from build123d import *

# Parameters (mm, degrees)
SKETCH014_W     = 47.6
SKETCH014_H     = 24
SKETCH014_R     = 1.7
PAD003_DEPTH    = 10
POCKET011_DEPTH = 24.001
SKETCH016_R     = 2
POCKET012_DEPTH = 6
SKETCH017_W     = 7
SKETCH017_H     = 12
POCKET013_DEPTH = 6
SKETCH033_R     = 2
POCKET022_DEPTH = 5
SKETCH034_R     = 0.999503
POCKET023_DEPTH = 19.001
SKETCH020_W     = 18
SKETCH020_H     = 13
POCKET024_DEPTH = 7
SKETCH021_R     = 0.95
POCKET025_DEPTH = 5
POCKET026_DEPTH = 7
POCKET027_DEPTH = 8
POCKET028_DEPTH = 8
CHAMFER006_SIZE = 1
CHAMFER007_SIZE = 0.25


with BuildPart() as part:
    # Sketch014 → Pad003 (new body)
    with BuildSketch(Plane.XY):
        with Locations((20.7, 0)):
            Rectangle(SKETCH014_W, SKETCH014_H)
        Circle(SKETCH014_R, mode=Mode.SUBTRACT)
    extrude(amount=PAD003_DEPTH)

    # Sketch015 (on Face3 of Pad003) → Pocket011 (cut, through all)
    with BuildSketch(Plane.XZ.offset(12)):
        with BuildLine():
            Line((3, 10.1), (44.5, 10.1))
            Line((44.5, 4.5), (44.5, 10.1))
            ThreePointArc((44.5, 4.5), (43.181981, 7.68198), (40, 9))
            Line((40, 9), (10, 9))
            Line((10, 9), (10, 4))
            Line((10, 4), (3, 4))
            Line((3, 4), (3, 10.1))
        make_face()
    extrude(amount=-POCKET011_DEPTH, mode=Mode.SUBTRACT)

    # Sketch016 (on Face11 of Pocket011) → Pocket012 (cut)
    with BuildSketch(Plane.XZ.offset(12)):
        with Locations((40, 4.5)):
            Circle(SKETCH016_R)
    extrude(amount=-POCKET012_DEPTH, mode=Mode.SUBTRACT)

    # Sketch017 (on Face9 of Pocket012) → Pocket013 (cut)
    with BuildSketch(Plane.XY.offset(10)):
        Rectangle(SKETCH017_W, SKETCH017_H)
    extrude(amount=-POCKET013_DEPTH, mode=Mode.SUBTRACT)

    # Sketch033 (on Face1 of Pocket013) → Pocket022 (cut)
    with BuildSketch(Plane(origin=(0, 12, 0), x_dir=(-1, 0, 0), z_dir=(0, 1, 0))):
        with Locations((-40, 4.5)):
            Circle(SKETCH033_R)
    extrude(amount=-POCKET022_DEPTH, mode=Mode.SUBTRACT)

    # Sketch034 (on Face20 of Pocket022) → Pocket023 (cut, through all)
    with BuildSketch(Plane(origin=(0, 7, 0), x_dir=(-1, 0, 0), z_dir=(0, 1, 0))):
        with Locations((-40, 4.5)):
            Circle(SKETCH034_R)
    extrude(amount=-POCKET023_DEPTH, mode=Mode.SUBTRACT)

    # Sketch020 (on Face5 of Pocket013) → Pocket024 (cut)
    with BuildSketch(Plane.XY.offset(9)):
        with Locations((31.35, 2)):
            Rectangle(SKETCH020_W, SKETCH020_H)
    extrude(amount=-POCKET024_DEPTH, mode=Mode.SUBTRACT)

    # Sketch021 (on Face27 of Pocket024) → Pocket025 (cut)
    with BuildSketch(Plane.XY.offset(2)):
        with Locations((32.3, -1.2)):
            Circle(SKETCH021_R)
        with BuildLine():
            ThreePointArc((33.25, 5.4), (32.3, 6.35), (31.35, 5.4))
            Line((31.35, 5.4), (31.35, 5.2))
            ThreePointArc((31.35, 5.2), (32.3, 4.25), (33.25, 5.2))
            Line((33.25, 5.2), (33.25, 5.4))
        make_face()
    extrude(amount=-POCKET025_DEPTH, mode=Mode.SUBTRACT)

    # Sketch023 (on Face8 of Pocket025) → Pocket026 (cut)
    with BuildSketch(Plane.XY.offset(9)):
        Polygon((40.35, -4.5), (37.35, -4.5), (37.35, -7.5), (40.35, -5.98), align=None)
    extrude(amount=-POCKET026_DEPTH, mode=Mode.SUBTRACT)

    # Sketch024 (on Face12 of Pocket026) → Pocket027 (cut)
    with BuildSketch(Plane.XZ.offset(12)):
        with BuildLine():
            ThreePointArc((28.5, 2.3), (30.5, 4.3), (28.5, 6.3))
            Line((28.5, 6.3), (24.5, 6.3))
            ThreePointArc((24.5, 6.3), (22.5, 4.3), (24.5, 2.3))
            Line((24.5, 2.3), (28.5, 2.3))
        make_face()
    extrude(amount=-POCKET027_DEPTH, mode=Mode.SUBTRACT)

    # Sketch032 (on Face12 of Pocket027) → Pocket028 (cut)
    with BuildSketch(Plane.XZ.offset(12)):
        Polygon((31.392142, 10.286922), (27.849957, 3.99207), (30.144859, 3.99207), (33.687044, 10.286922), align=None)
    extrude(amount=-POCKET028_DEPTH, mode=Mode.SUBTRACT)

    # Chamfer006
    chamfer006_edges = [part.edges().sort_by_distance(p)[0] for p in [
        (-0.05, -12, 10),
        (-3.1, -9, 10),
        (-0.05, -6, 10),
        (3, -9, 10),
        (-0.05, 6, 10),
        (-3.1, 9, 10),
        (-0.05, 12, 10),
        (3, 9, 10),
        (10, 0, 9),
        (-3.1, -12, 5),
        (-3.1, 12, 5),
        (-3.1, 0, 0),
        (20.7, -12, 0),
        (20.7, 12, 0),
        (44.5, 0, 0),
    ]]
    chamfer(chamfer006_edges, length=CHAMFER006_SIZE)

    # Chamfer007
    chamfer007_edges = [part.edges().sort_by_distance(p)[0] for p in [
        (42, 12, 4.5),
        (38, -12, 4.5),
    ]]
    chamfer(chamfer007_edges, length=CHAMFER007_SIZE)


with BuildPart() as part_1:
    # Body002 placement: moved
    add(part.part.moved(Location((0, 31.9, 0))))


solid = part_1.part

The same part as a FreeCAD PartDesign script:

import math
import FreeCAD as App
import Part
import Sketcher

V = App.Vector


def edges_at(feature, points):
    """Names of the edges that pass closest to the given points."""
    edges = feature.Shape.Edges
    near = lambda p: min(range(len(edges)), key=lambda i: edges[i].distToShape(Part.Vertex(*p))[0])
    return sorted({f"Edge{near(p) + 1}" for p in points})


def add_polygon(sketch, points):
    """Adds a closed chain of lines whose ends are joined by coincident constraints."""
    first, n = sketch.GeometryCount, len(points)
    for a, b in zip(points, points[1:] + points[:1]):
        sketch.addGeometry(Part.LineSegment(App.Vector(*a, 0), App.Vector(*b, 0)), False)
    for i in range(n):
        sketch.addConstraint(Sketcher.Constraint("Coincident", first + i, 2, first + (i + 1) % n, 1))

doc = App.newDocument("Part")
body = doc.addObject("PartDesign::Body", "Body")

# Sketch on XY plane
sketch1 = body.newObject("Sketcher::SketchObject", "Sketch")
sketch1.AttachmentSupport = (doc.getObject("XY_Plane"), [""])
sketch1.MapMode = "FlatFace"
add_polygon(sketch1, [(-3.1, 12), (-3.1, -12), (44.5, -12), (44.5, 12)])  # lines 0-3
sketch1.addGeometry(Part.Circle(V(0, 0, 0), V(0, 0, 1), 1.7), False)  # 4
sketch1.addConstraint([
    Sketcher.Constraint("Vertical", 0),
    Sketcher.Constraint("Horizontal", 1),
    Sketcher.Constraint("Vertical", 2),
    Sketcher.Constraint("Horizontal", 3),
    Sketcher.Constraint("Coincident", 4, 3, -1, 1),
    Sketcher.Constraint("Diameter", 4, 3.4),
    Sketcher.Constraint("DistanceY", 0, 2, 0, 1, 24.0),
    Sketcher.Constraint("DistanceX", 1, 1, 1, 2, 47.6),
    Sketcher.Constraint("DistanceY", 0, 2, -1, 1, 12.0),
    Sketcher.Constraint("DistanceX", 0, 2, -1, 1, 3.1),
])
pad1 = body.newObject("PartDesign::Pad", "Pad")
pad1.Profile = sketch1
pad1.Length = 10

# Sketch on XZ plane
sketch2 = body.newObject("Sketcher::SketchObject", "Sketch001")
sketch2.AttachmentSupport = (doc.getObject("XZ_Plane"), [""])
sketch2.MapMode = "FlatFace"
sketch2.AttachmentOffset = App.Placement(V(0, 0, 12), App.Rotation())
sketch2.addGeometry([
    Part.LineSegment(V(44.5, 10.1, 0), V(3, 10.1, 0)),  # 0
    Part.LineSegment(V(3, 10.1, 0), V(3, 4, 0)),  # 1
    Part.LineSegment(V(3, 4, 0), V(10, 4, 0)),  # 2
    Part.LineSegment(V(10, 4, 0), V(10, 9, 0)),  # 3
    Part.LineSegment(V(10, 9, 0), V(40, 9, 0)),  # 4
    Part.ArcOfCircle(Part.Circle(V(40, 4.5, 0), V(0, 0, 1), 4.5), math.radians(0.000001), math.radians(89.999999)),  # 5
    Part.LineSegment(V(44.5, 4.5, 0), V(44.5, 10.1, 0)),  # 6
], False)
sketch2.addConstraint([
    Sketcher.Constraint("Coincident", 0, 2, 1, 1),
    Sketcher.Constraint("Coincident", 1, 2, 2, 1),
    Sketcher.Constraint("Coincident", 2, 2, 3, 1),
    Sketcher.Constraint("Coincident", 3, 2, 4, 1),
    Sketcher.Constraint("Tangent", 4, 2, 5, 2),
    Sketcher.Constraint("Tangent", 5, 1, 6, 1),
    Sketcher.Constraint("Coincident", 6, 2, 0, 1),
    Sketcher.Constraint("Horizontal", 0),
    Sketcher.Constraint("Vertical", 1),
    Sketcher.Constraint("Horizontal", 2),
    Sketcher.Constraint("Vertical", 3),
    Sketcher.Constraint("Horizontal", 4),
    Sketcher.Constraint("Vertical", 6),
    Sketcher.Constraint("Radius", 5, 4.5),
    Sketcher.Constraint("DistanceX", 2, 1, 2, 2, 7.0),
    Sketcher.Constraint("DistanceX", 4, 1, 4, 2, 30.0),
    Sketcher.Constraint("DistanceY", 3, 1, 3, 2, 5.0),
    Sketcher.Constraint("DistanceY", 1, 2, 1, 1, 6.1),
    Sketcher.Constraint("DistanceX", -1, 1, 5, 3, 40.0),
    Sketcher.Constraint("DistanceY", -1, 1, 1, 2, 4.0),
])
pocket1 = body.newObject("PartDesign::Pocket", "Pocket")
pocket1.Profile = sketch2
pocket1.Type = "ThroughAll"

# Sketch on XZ plane
sketch3 = body.newObject("Sketcher::SketchObject", "Sketch002")
sketch3.AttachmentSupport = (doc.getObject("XZ_Plane"), [""])
sketch3.MapMode = "FlatFace"
sketch3.AttachmentOffset = App.Placement(V(0, 0, 12), App.Rotation())
sketch3.addGeometry(Part.Circle(V(40, 4.5, 0), V(0, 0, 1), 2), False)
sketch3.addConstraint([
    Sketcher.Constraint("Diameter", 0, 4.0),
    Sketcher.Constraint("DistanceX", -1, 1, 0, 3, 40.0),
    Sketcher.Constraint("DistanceY", -1, 1, 0, 3, 4.5),
])
pocket2 = body.newObject("PartDesign::Pocket", "Pocket001")
pocket2.Profile = sketch3
pocket2.Length = 6

# Sketch on XY plane
sketch4 = body.newObject("Sketcher::SketchObject", "Sketch003")
sketch4.AttachmentSupport = (doc.getObject("XY_Plane"), [""])
sketch4.MapMode = "FlatFace"
sketch4.AttachmentOffset = App.Placement(V(0, 0, 10), App.Rotation())
add_polygon(sketch4, [(-3.5, 6), (-3.5, -6), (3.5, -6), (3.5, 6)])  # lines 0-3
sketch4.addConstraint([
    Sketcher.Constraint("Vertical", 0),
    Sketcher.Constraint("Horizontal", 1),
    Sketcher.Constraint("Vertical", 2),
    Sketcher.Constraint("Horizontal", 3),
    Sketcher.Constraint("Symmetric", 0, 2, 2, 2, -1, 1),
    Sketcher.Constraint("DistanceX", 1, 1, 1, 2, 7.0),
    Sketcher.Constraint("DistanceY", 0, 2, 0, 1, 12.0),
])
pocket3 = body.newObject("PartDesign::Pocket", "Pocket002")
pocket3.Profile = sketch4
pocket3.Length = 6

# Sketch on XZ plane
sketch5 = body.newObject("Sketcher::SketchObject", "Sketch004")
sketch5.AttachmentSupport = (doc.getObject("XZ_Plane"), [""])
sketch5.MapMode = "FlatFace"
sketch5.AttachmentOffset = App.Placement(V(0, 0, -12), App.Rotation())
sketch5.addGeometry(Part.Circle(V(40, 4.5, 0), V(0, 0, 1), 2), False)
sketch5.addConstraint([
    Sketcher.Constraint("Diameter", 0, 4.0),
    Sketcher.Constraint("DistanceX", -1, 1, 0, 3, 40.0),
    Sketcher.Constraint("DistanceY", -1, 1, 0, 3, 4.5),
])
pocket4 = body.newObject("PartDesign::Pocket", "Pocket003")
pocket4.Profile = sketch5
pocket4.Length = 5
pocket4.Reversed = True

# Sketch on XZ plane
sketch6 = body.newObject("Sketcher::SketchObject", "Sketch005")
sketch6.AttachmentSupport = (doc.getObject("XZ_Plane"), [""])
sketch6.MapMode = "FlatFace"
sketch6.AttachmentOffset = App.Placement(V(0, 0, -7), App.Rotation())
sketch6.addGeometry(Part.Circle(V(40, 4.5, 0), V(0, 0, 1), 0.999503), False)
sketch6.addConstraint([
    Sketcher.Constraint("DistanceX", -1, 1, 0, 3, 40.0),
    Sketcher.Constraint("DistanceY", -1, 1, 0, 3, 4.5),
    Sketcher.Constraint("Diameter", 0, 1.999006),
])
pocket5 = body.newObject("PartDesign::Pocket", "Pocket004")
pocket5.Profile = sketch6
pocket5.Type = "ThroughAll"
pocket5.Reversed = True

# Sketch on XY plane
sketch7 = body.newObject("Sketcher::SketchObject", "Sketch006")
sketch7.AttachmentSupport = (doc.getObject("XY_Plane"), [""])
sketch7.MapMode = "FlatFace"
sketch7.AttachmentOffset = App.Placement(V(0, 0, 9), App.Rotation())
add_polygon(sketch7, [(22.35, 8.5), (22.35, -4.5), (40.35, -4.5), (40.35, 8.5)])  # lines 0-3
sketch7.addConstraint([
    Sketcher.Constraint("Vertical", 0),
    Sketcher.Constraint("Horizontal", 1),
    Sketcher.Constraint("Vertical", 2),
    Sketcher.Constraint("Horizontal", 3),
    Sketcher.Constraint("DistanceX", 1, 1, 1, 2, 18.0),
    Sketcher.Constraint("DistanceY", 0, 2, 0, 1, 13.0),
    Sketcher.Constraint("DistanceY", 0, 2, -1, 1, 4.5),
    Sketcher.Constraint("DistanceX", -1, 1, 0, 2, 22.35),
])
pocket6 = body.newObject("PartDesign::Pocket", "Pocket005")
pocket6.Profile = sketch7
pocket6.Length = 7

# Sketch on XY plane
sketch8 = body.newObject("Sketcher::SketchObject", "Sketch007")
sketch8.AttachmentSupport = (doc.getObject("XY_Plane"), [""])
sketch8.MapMode = "FlatFace"
sketch8.AttachmentOffset = App.Placement(V(0, 0, 2), App.Rotation())
sketch8.addGeometry([
    Part.Circle(V(32.3, -1.2, 0), V(0, 0, 1), 0.95),  # 0
    Part.ArcOfCircle(Part.Circle(V(32.3, 5.4, 0), V(0, 0, 1), 0.95), math.radians(0), math.radians(180)),  # 1
    Part.LineSegment(V(31.35, 5.4, 0), V(31.35, 5.2, 0)),  # 2
    Part.ArcOfCircle(Part.Circle(V(32.3, 5.2, 0), V(0, 0, 1), 0.95), math.radians(180), math.radians(360)),  # 3
    Part.LineSegment(V(33.25, 5.2, 0), V(33.25, 5.4, 0)),  # 4
], False)
sketch8.addConstraint([
    Sketcher.Constraint("Tangent", 1, 2, 2, 1),
    Sketcher.Constraint("Tangent", 2, 2, 3, 1),
    Sketcher.Constraint("Tangent", 3, 2, 4, 1),
    Sketcher.Constraint("Tangent", 4, 2, 1, 1),
    Sketcher.Constraint("Vertical", 2),
    Sketcher.Constraint("Vertical", 4),
    Sketcher.Constraint("Equal", 0, 1),
    Sketcher.Constraint("Vertical", 0, 3, 1, 3),
    Sketcher.Constraint("Diameter", 0, 1.9),
    Sketcher.Constraint("DistanceY", 2, 2, 2, 1, 0.2),
    Sketcher.Constraint("DistanceX", -1, 1, 0, 3, 32.3),
    Sketcher.Constraint("DistanceY", 0, 3, -1, 1, 1.2),
    Sketcher.Constraint("DistanceY", -1, 1, 1, 3, 5.4),
])
pocket7 = body.newObject("PartDesign::Pocket", "Pocket006")
pocket7.Profile = sketch8
pocket7.Length = 5

# Sketch on XY plane
sketch9 = body.newObject("Sketcher::SketchObject", "Sketch008")
sketch9.AttachmentSupport = (doc.getObject("XY_Plane"), [""])
sketch9.MapMode = "FlatFace"
sketch9.AttachmentOffset = App.Placement(V(0, 0, 9), App.Rotation())
add_polygon(sketch9, [(40.35, -4.5), (37.35, -4.5), (37.35, -7.5), (40.35, -5.98)])  # lines 0-3
sketch9.addConstraint([
    Sketcher.Constraint("Horizontal", 0),
    Sketcher.Constraint("Vertical", 1),
    Sketcher.Constraint("Vertical", 3),
    Sketcher.Constraint("Equal", 0, 1),
    Sketcher.Constraint("DistanceX", 0, 2, 0, 1, 3.0),
    Sketcher.Constraint("DistanceY", 3, 1, 3, 2, 1.48),
    Sketcher.Constraint("DistanceY", 0, 2, -1, 1, 4.5),
    Sketcher.Constraint("DistanceX", -1, 1, 0, 2, 37.35),
])
pocket8 = body.newObject("PartDesign::Pocket", "Pocket007")
pocket8.Profile = sketch9
pocket8.Length = 7

# Sketch on XZ plane
sketch10 = body.newObject("Sketcher::SketchObject", "Sketch009")
sketch10.AttachmentSupport = (doc.getObject("XZ_Plane"), [""])
sketch10.MapMode = "FlatFace"
sketch10.AttachmentOffset = App.Placement(V(0, 0, 12), App.Rotation())
sketch10.addGeometry([
    Part.ArcOfCircle(Part.Circle(V(28.5, 4.3, 0), V(0, 0, 1), 2), math.radians(-90), math.radians(90)),
    Part.LineSegment(V(28.5, 6.3, 0), V(24.5, 6.3, 0)),
    Part.ArcOfCircle(Part.Circle(V(24.5, 4.3, 0), V(0, 0, 1), 2), math.radians(90), math.radians(270)),
    Part.LineSegment(V(24.5, 2.3, 0), V(28.5, 2.3, 0)),
], False)
sketch10.addConstraint([
    Sketcher.Constraint("Tangent", 0, 2, 1, 1),
    Sketcher.Constraint("Tangent", 1, 2, 2, 1),
    Sketcher.Constraint("Tangent", 2, 2, 3, 1),
    Sketcher.Constraint("Tangent", 3, 2, 0, 1),
    Sketcher.Constraint("Horizontal", 1),
    Sketcher.Constraint("Horizontal", 3),
    Sketcher.Constraint("Radius", 0, 2.0),
    Sketcher.Constraint("DistanceX", 1, 2, 1, 1, 4.0),
    Sketcher.Constraint("DistanceX", -1, 1, 0, 3, 28.5),
    Sketcher.Constraint("DistanceY", -1, 1, 0, 3, 4.3),
])
pocket9 = body.newObject("PartDesign::Pocket", "Pocket008")
pocket9.Profile = sketch10
pocket9.Length = 8

# Sketch on XZ plane
sketch11 = body.newObject("Sketcher::SketchObject", "Sketch010")
sketch11.AttachmentSupport = (doc.getObject("XZ_Plane"), [""])
sketch11.MapMode = "FlatFace"
sketch11.AttachmentOffset = App.Placement(V(0, 0, 12), App.Rotation())
add_polygon(sketch11, [(31.392142, 10.286922), (27.849957, 3.99207), (30.144859, 3.99207), (33.687044, 10.286922)])  # lines 0-3
sketch11.addConstraint([
    Sketcher.Constraint("Horizontal", 1),
    Sketcher.Constraint("Horizontal", 3),
    Sketcher.Constraint("Parallel", 0, 2),
    Sketcher.Constraint("DistanceX", 1, 1, 1, 2, 2.294902),
    Sketcher.Constraint("DistanceY", -1, 1, 0, 2, 3.99207),
    Sketcher.Constraint("DistanceX", -1, 1, 1, 2, 30.144859),
    Sketcher.Constraint("DistanceX", -1, 1, 3, 2, 31.392142),
    Sketcher.Constraint("Distance", 0, 7.223035),
])
pocket10 = body.newObject("PartDesign::Pocket", "Pocket009")
pocket10.Profile = sketch11
pocket10.Length = 8
doc.recompute()

chamfer = body.newObject("PartDesign::Chamfer", "Chamfer")
chamfer.Base = (pocket10, edges_at(pocket10, [
    (-0.05, -12, 10),
    (-3.1, -9, 10),
    (-0.05, -6, 10),
    (3, -9, 10),
    (-0.05, 6, 10),
    (-3.1, 9, 10),
    (-0.05, 12, 10),
    (3, 9, 10),
    (10, 0, 9),
    (-3.1, -12, 5),
    (-3.1, 12, 5),
    (-3.1, 0, 0),
    (20.7, -12, 0),
    (20.7, 12, 0),
    (44.5, 0, 0),
]))
chamfer.Size = 1
doc.recompute()

chamfer2 = body.newObject("PartDesign::Chamfer", "Chamfer001")
chamfer2.Base = (chamfer, edges_at(chamfer, [(42, 12, 4.5), (38, -12, 4.5)]))
chamfer2.Size = 0.25
body2 = doc.addObject("PartDesign::Body", "Body001")
doc.recompute()

body.Placement = App.Placement(V(0, 31.9, 0), App.Rotation(V(0, 0, 1), 0))
boolean = body2.newObject("PartDesign::Boolean", "Boolean")
boolean.Type = "Fuse"
boolean.addObjects([body])

doc.recompute()
